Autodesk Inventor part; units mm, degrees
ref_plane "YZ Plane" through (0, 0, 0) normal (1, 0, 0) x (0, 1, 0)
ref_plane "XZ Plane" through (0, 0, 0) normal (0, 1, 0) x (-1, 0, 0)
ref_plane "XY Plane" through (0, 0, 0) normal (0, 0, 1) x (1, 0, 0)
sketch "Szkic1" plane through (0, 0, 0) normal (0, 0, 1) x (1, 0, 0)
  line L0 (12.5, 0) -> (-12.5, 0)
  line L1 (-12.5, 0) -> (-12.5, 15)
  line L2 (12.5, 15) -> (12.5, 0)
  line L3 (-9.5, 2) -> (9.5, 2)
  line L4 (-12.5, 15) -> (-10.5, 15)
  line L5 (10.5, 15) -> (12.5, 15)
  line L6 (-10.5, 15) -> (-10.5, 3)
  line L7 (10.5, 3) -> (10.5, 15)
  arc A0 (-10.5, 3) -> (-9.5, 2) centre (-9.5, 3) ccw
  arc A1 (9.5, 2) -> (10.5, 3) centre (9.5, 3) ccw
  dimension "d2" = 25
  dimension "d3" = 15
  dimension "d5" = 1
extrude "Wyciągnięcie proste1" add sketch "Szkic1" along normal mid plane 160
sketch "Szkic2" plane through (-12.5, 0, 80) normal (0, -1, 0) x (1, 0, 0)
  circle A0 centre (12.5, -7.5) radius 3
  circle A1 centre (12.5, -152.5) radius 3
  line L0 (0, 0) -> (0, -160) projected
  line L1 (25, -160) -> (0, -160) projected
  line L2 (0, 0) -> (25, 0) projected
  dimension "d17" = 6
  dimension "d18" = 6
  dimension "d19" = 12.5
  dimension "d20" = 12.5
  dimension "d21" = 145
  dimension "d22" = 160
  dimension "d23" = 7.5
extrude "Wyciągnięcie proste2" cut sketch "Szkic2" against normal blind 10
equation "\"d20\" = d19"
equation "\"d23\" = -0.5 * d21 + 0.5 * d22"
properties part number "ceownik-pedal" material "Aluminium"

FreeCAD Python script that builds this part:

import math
import FreeCAD as App
import Part
import Sketcher

doc = App.newDocument("Part")
body = doc.addObject("PartDesign::Body", "Body")

sketch1 = body.newObject("Sketcher::SketchObject", "Sketch")
sketch1.AttachmentSupport = (doc.getObject("XY_Plane"), [""])
sketch1.MapMode = "FlatFace"
sketch1.addGeometry([
    Part.LineSegment(App.Vector(-12.5, 0, 0), App.Vector(12.5, 0, 0)),
    Part.LineSegment(App.Vector(12.5, 0, 0), App.Vector(12.5, 15, 0)),
    Part.LineSegment(App.Vector(12.5, 15, 0), App.Vector(10.5, 15, 0)),
    Part.LineSegment(App.Vector(10.5, 15, 0), App.Vector(10.5, 3, 0)),
    Part.ArcOfCircle(Part.Circle(App.Vector(9.5, 3, 0), App.Vector(0, 0, 1), 1), math.radians(-90), math.radians(0)),
    Part.LineSegment(App.Vector(9.5, 2, 0), App.Vector(-9.5, 2, 0)),
    Part.ArcOfCircle(Part.Circle(App.Vector(-9.5, 3, 0), App.Vector(0, 0, 1), 1), math.radians(180), math.radians(270)),
    Part.LineSegment(App.Vector(-10.5, 3, 0), App.Vector(-10.5, 15, 0)),
    Part.LineSegment(App.Vector(-10.5, 15, 0), App.Vector(-12.5, 15, 0)),
    Part.LineSegment(App.Vector(-12.5, 15, 0), App.Vector(-12.5, 0, 0)),
], False)
sketch1.addConstraint([
    Sketcher.Constraint("Coincident", 0, 2, 1, 1),
    Sketcher.Constraint("Coincident", 1, 2, 2, 1),
    Sketcher.Constraint("Coincident", 2, 2, 3, 1),
    Sketcher.Constraint("Tangent", 3, 2, 4, 2),
    Sketcher.Constraint("Tangent", 4, 1, 5, 1),
    Sketcher.Constraint("Tangent", 5, 2, 6, 2),
    Sketcher.Constraint("Tangent", 6, 1, 7, 1),
    Sketcher.Constraint("Coincident", 7, 2, 8, 1),
    Sketcher.Constraint("Coincident", 8, 2, 9, 1),
    Sketcher.Constraint("Coincident", 9, 2, 0, 1),
    Sketcher.Constraint("Horizontal", 0),
    Sketcher.Constraint("Vertical", 1),
    Sketcher.Constraint("Horizontal", 2),
    Sketcher.Constraint("Vertical", 3),
    Sketcher.Constraint("Horizontal", 5),
    Sketcher.Constraint("Vertical", 7),
    Sketcher.Constraint("Horizontal", 8),
    Sketcher.Constraint("Vertical", 9),
    Sketcher.Constraint("Equal", 4, 6),
    Sketcher.Constraint("Symmetric", 0, 2, 9, 2, -1, 1),
    Sketcher.Constraint("Symmetric", 2, 2, 7, 2, -2),
    Sketcher.Constraint("Radius", 4, 1.0),
    Sketcher.Constraint("DistanceX", 0, 1, 0, 2, 25.0),
    Sketcher.Constraint("DistanceY", 1, 1, 1, 2, 15.0),
    Sketcher.Constraint("DistanceX", 2, 2, 2, 1, 2.0),
    Sketcher.Constraint("DistanceY", 3, 2, 3, 1, 12.0),
])
pad1 = body.newObject("PartDesign::Pad", "Pad")
pad1.Profile = sketch1
pad1.Length = 160
pad1.Midplane = True

sketch2 = body.newObject("Sketcher::SketchObject", "Sketch001")
sketch2.AttachmentSupport = (doc.getObject("XZ_Plane"), [""])
sketch2.MapMode = "FlatFace"
sketch2.addGeometry([
    Part.Circle(App.Vector(0, 72.5, 0), App.Vector(0, 0, 1), 3),
    Part.Circle(App.Vector(0, -72.5, 0), App.Vector(0, 0, 1), 3),
], False)
sketch2.addConstraint([
    Sketcher.Constraint("Equal", 0, 1),
    Sketcher.Constraint("Symmetric", 0, 3, 1, 3, -1, 1),
    Sketcher.Constraint("PointOnObject", 0, 3, -2),
    Sketcher.Constraint("Diameter", 0, 6.0),
    Sketcher.Constraint("DistanceY", 1, 3, 0, 3, 145.0),
])
pocket1 = body.newObject("PartDesign::Pocket", "Pocket")
pocket1.Profile = sketch2
pocket1.Length = 10

doc.recompute()
